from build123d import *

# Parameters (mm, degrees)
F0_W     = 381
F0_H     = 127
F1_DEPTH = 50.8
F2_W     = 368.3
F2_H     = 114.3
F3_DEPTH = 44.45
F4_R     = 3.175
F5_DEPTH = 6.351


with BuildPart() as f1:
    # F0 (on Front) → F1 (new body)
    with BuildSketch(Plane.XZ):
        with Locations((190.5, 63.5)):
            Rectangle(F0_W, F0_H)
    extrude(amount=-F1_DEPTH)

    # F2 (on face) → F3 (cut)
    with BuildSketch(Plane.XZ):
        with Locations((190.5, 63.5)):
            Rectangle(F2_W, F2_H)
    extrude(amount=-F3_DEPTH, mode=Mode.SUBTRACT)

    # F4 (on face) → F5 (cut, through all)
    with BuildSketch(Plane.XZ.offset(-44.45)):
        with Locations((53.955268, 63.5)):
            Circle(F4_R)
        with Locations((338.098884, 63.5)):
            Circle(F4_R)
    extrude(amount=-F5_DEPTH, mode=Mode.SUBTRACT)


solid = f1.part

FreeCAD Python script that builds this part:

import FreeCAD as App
import Part
import Sketcher

V = App.Vector
Q = App.Units.Quantity


def add_polygon(sketch, points):
    """Adds a closed chain of lines whose ends are joined by coincident constraints."""
    first, n = sketch.GeometryCount, len(points)
    for a, b in zip(points, points[1:] + points[:1]):
        sketch.addGeometry(Part.LineSegment(App.Vector(*a, 0), App.Vector(*b, 0)), False)
    for i in range(n):
        sketch.addConstraint(Sketcher.Constraint("Coincident", first + i, 2, first + (i + 1) % n, 1))

doc = App.newDocument("Part")
params = doc.addObject("Spreadsheet::Sheet", "Params")
for row, (alias, value) in enumerate([
    ("sketch1_width", "15 in"),
    ("sketch1_height", "5 in"),
    ("pad1_length", "2 in"),
    ("sketch2_width", "14.5 in"),
    ("sketch2_height", "4.5 in"),
    ("pocket1_length", "1.75 in"),
    ("sketch3_diameter", "0.25 in"),
], start=1):
    params.set(f"A{row}", alias)
    params.set(f"B{row}", "=" + value)
    params.setAlias(f"B{row}", alias)

body = doc.addObject("PartDesign::Body", "Body")

# Sketch on XZ plane
sketch1 = body.newObject("Sketcher::SketchObject", "Sketch")
sketch1.AttachmentSupport = (doc.getObject("XZ_Plane"), [""])
sketch1.MapMode = "FlatFace"
add_polygon(sketch1, [(0, 127), (0, 0), (381, 0), (381, 127)])  # lines 0-3
sketch1.addConstraint(Sketcher.Constraint("Vertical", 0))
sketch1.addConstraint(Sketcher.Constraint("Horizontal", 1))
sketch1.addConstraint(Sketcher.Constraint("Vertical", 2))
sketch1.addConstraint(Sketcher.Constraint("Horizontal", 3))
sketch1.addConstraint(Sketcher.Constraint("Coincident", 0, 2, -1, 1))
sketch1.addConstraint(Sketcher.Constraint("DistanceX", 1, 1, 1, 2, Q("15 in")))
sketch1.addConstraint(Sketcher.Constraint("DistanceY", 0, 2, 0, 1, Q("5 in")))
sketch1.setExpression("Constraints[9]", "Params.sketch1_width")
sketch1.setExpression("Constraints[10]", "Params.sketch1_height")
pad1 = body.newObject("PartDesign::Pad", "Pad")
pad1.Profile = sketch1
pad1.setExpression("Length", "Params.pad1_length")
pad1.Reversed = True

# Sketch on XZ plane
sketch2 = body.newObject("Sketcher::SketchObject", "Sketch001")
sketch2.AttachmentSupport = (doc.getObject("XZ_Plane"), [""])
sketch2.MapMode = "FlatFace"
add_polygon(sketch2, [(6, 121), (6, 6), (375, 6), (375, 121)])  # lines 0-3
sketch2.addConstraint(Sketcher.Constraint("Vertical", 0))
sketch2.addConstraint(Sketcher.Constraint("Horizontal", 1))
sketch2.addConstraint(Sketcher.Constraint("Vertical", 2))
sketch2.addConstraint(Sketcher.Constraint("Horizontal", 3))
sketch2.addConstraint(Sketcher.Constraint("DistanceX", 1, 1, 1, 2, Q("14.5 in")))
sketch2.addConstraint(Sketcher.Constraint("DistanceY", 0, 2, 0, 1, Q("4.5 in")))
sketch2.addConstraint(Sketcher.Constraint("DistanceX", -1, 1, 0, 2, Q("0.25 in")))
sketch2.addConstraint(Sketcher.Constraint("DistanceY", -1, 1, 0, 2, Q("0.25 in")))
sketch2.setExpression("Constraints[8]", "Params.sketch2_width")
sketch2.setExpression("Constraints[9]", "Params.sketch2_height")
pocket1 = body.newObject("PartDesign::Pocket", "Pocket")
pocket1.Profile = sketch2
pocket1.setExpression("Length", "Params.pocket1_length")

# Sketch on XZ plane
sketch3 = body.newObject("Sketcher::SketchObject", "Sketch002")
sketch3.AttachmentSupport = (doc.getObject("XZ_Plane"), [""])
sketch3.MapMode = "FlatFace"
sketch3.AttachmentOffset = App.Placement(V(0, 0, -1.75 * 25.4), App.Rotation())
sketch3.addGeometry(Part.Circle(V(54, 63.5, 0), V(0, 0, 1), 3.2), False)
sketch3.addGeometry(Part.Circle(V(338.1, 63.5, 0), V(0, 0, 1), 3.2), False)
sketch3.addConstraint(Sketcher.Constraint("Equal", 0, 1))
sketch3.addConstraint(Sketcher.Constraint("Horizontal", 0, 3, 1, 3))
sketch3.addConstraint(Sketcher.Constraint("Diameter", 0, Q("0.25 in")))
sketch3.addConstraint(Sketcher.Constraint("DistanceY", -1, 1, 0, 3, Q("2.5 in")))
sketch3.addConstraint(Sketcher.Constraint("DistanceX", -1, 1, 0, 3, Q("53.955268 mm")))
sketch3.addConstraint(Sketcher.Constraint("DistanceX", -1, 1, 1, 3, Q("338.098884 mm")))
sketch3.setExpression("Constraints[2]", "Params.sketch3_diameter")
pocket2 = body.newObject("PartDesign::Pocket", "Pocket001")
pocket2.Profile = sketch3
pocket2.Type = "ThroughAll"

doc.recompute()
